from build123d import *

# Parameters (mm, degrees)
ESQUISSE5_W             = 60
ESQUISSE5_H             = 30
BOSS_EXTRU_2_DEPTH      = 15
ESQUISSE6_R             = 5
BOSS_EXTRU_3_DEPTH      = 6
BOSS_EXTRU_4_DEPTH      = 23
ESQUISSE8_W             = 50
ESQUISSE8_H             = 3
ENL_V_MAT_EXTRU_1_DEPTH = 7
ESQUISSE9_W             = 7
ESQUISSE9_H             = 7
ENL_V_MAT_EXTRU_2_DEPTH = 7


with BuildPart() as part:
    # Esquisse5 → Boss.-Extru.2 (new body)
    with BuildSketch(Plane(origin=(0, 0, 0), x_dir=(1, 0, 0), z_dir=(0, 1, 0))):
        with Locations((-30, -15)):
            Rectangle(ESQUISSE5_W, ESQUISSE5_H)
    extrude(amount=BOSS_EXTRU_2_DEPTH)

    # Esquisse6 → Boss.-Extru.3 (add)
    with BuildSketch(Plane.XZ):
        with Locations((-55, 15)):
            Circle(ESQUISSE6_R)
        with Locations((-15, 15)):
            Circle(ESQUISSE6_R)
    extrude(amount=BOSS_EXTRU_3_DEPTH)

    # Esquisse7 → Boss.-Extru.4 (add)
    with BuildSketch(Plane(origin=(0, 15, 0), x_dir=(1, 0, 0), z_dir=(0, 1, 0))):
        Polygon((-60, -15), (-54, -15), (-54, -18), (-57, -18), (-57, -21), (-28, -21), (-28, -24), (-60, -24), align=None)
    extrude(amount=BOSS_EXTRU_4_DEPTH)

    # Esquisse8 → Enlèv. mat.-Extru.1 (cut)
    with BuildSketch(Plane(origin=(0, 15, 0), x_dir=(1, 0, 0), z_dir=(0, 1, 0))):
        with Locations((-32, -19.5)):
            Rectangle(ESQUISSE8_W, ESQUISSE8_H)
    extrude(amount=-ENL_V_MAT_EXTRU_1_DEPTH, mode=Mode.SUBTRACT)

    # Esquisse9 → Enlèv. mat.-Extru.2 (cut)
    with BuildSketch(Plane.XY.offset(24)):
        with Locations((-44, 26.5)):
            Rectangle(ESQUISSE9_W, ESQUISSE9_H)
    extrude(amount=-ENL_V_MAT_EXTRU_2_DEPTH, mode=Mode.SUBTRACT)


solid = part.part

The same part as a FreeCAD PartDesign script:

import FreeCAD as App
import Part
import Sketcher
Q = App.Units.Quantity

doc = App.newDocument("Part")
body = doc.addObject("PartDesign::Body", "Body")

sketch1 = body.newObject("Sketcher::SketchObject", "Sketch")
sketch1.AttachmentSupport = (doc.getObject("XZ_Plane"), [""])
sketch1.MapMode = "FlatFace"
sketch1.addGeometry([
    Part.LineSegment(App.Vector(-60, 0, 0), App.Vector(-60, 30, 0)),
    Part.LineSegment(App.Vector(-60, 30, 0), App.Vector(0, 30, 0)),
    Part.LineSegment(App.Vector(0, 30, 0), App.Vector(0, 0, 0)),
    Part.LineSegment(App.Vector(0, 0, 0), App.Vector(-60, 0, 0)),
], False)
sketch1.addConstraint([
    Sketcher.Constraint("Coincident", 0, 2, 1, 1),
    Sketcher.Constraint("Coincident", 1, 2, 2, 1),
    Sketcher.Constraint("Coincident", 2, 2, 3, 1),
    Sketcher.Constraint("Coincident", 3, 2, 0, 1),
    Sketcher.Constraint("Vertical", 0),
    Sketcher.Constraint("Horizontal", 1),
    Sketcher.Constraint("Vertical", 2),
    Sketcher.Constraint("Horizontal", 3),
    Sketcher.Constraint("Coincident", 2, 2, -1, 1),
    Sketcher.Constraint("DistanceX", 1, 1, 1, 2, Q("60 mm")),
    Sketcher.Constraint("DistanceY", 0, 1, 0, 2, Q("30 mm")),
])
pad1 = body.newObject("PartDesign::Pad", "Pad")
pad1.Profile = sketch1
pad1.Length = 15
pad1.Reversed = True

sketch2 = body.newObject("Sketcher::SketchObject", "Sketch001")
sketch2.AttachmentSupport = (doc.getObject("XZ_Plane"), [""])
sketch2.MapMode = "FlatFace"
sketch2.addGeometry([
    Part.Circle(App.Vector(-55, 15, 0), App.Vector(0, 0, 1), 5),
    Part.Circle(App.Vector(-15, 15, 0), App.Vector(0, 0, 1), 5),
], False)
sketch2.addConstraint([
    Sketcher.Constraint("Equal", 0, 1),
    Sketcher.Constraint("Horizontal", 0, 3, 1, 3),
    Sketcher.Constraint("Diameter", 0, Q("10 mm")),
    Sketcher.Constraint("DistanceX", 0, 3, -1, 1, Q("55 mm")),
    Sketcher.Constraint("DistanceY", -1, 1, 0, 3, Q("15 mm")),
    Sketcher.Constraint("DistanceX", 1, 3, -1, 1, Q("15 mm")),
])
pad2 = body.newObject("PartDesign::Pad", "Pad001")
pad2.Profile = sketch2
pad2.Length = 6

sketch3 = body.newObject("Sketcher::SketchObject", "Sketch002")
sketch3.AttachmentSupport = (doc.getObject("XZ_Plane"), [""])
sketch3.MapMode = "FlatFace"
sketch3.AttachmentOffset = App.Placement(App.Vector(0, 0, -15), App.Rotation())
sketch3.addGeometry([
    Part.LineSegment(App.Vector(-54, 15, 0), App.Vector(-60, 15, 0)),
    Part.LineSegment(App.Vector(-60, 15, 0), App.Vector(-60, 24, 0)),
    Part.LineSegment(App.Vector(-60, 24, 0), App.Vector(-28, 24, 0)),
    Part.LineSegment(App.Vector(-28, 24, 0), App.Vector(-28, 21, 0)),
    Part.LineSegment(App.Vector(-28, 21, 0), App.Vector(-57, 21, 0)),
    Part.LineSegment(App.Vector(-57, 21, 0), App.Vector(-57, 18, 0)),
    Part.LineSegment(App.Vector(-57, 18, 0), App.Vector(-54, 18, 0)),
    Part.LineSegment(App.Vector(-54, 18, 0), App.Vector(-54, 15, 0)),
], False)
sketch3.addConstraint([
    Sketcher.Constraint("Coincident", 0, 2, 1, 1),
    Sketcher.Constraint("Coincident", 1, 2, 2, 1),
    Sketcher.Constraint("Coincident", 2, 2, 3, 1),
    Sketcher.Constraint("Coincident", 3, 2, 4, 1),
    Sketcher.Constraint("Coincident", 4, 2, 5, 1),
    Sketcher.Constraint("Coincident", 5, 2, 6, 1),
    Sketcher.Constraint("Coincident", 6, 2, 7, 1),
    Sketcher.Constraint("Coincident", 7, 2, 0, 1),
    Sketcher.Constraint("Horizontal", 0),
    Sketcher.Constraint("Vertical", 1),
    Sketcher.Constraint("Horizontal", 2),
    Sketcher.Constraint("Vertical", 3),
    Sketcher.Constraint("Horizontal", 4),
    Sketcher.Constraint("Vertical", 5),
    Sketcher.Constraint("Horizontal", 6),
    Sketcher.Constraint("Vertical", 7),
    Sketcher.Constraint("Equal", 6, 3),
    Sketcher.Constraint("Equal", 3, 5),
    Sketcher.Constraint("Equal", 5, 7),
    Sketcher.Constraint("DistanceX", 0, 2, 0, 1, Q("6 mm")),
    Sketcher.Constraint("DistanceX", 2, 1, 2, 2, Q("32 mm")),
    Sketcher.Constraint("DistanceX", 4, 2, 4, 1, Q("29 mm")),
    Sketcher.Constraint("DistanceX", 0, 2, -1, 1, Q("60 mm")),
    Sketcher.Constraint("DistanceY", -1, 1, 0, 2, Q("15 mm")),
])
pad3 = body.newObject("PartDesign::Pad", "Pad002")
pad3.Profile = sketch3
pad3.Length = 23
pad3.Reversed = True

sketch4 = body.newObject("Sketcher::SketchObject", "Sketch003")
sketch4.AttachmentSupport = (doc.getObject("XZ_Plane"), [""])
sketch4.MapMode = "FlatFace"
sketch4.AttachmentOffset = App.Placement(App.Vector(0, 0, -15), App.Rotation())
sketch4.addGeometry([
    Part.LineSegment(App.Vector(-57, 18, 0), App.Vector(-57, 21, 0)),
    Part.LineSegment(App.Vector(-57, 21, 0), App.Vector(-7, 21, 0)),
    Part.LineSegment(App.Vector(-7, 21, 0), App.Vector(-7, 18, 0)),
    Part.LineSegment(App.Vector(-7, 18, 0), App.Vector(-57, 18, 0)),
], False)
sketch4.addConstraint([
    Sketcher.Constraint("Coincident", 0, 2, 1, 1),
    Sketcher.Constraint("Coincident", 1, 2, 2, 1),
    Sketcher.Constraint("Coincident", 2, 2, 3, 1),
    Sketcher.Constraint("Coincident", 3, 2, 0, 1),
    Sketcher.Constraint("Vertical", 0),
    Sketcher.Constraint("Horizontal", 1),
    Sketcher.Constraint("Vertical", 2),
    Sketcher.Constraint("Horizontal", 3),
    Sketcher.Constraint("DistanceX", 1, 1, 1, 2, Q("50 mm")),
    Sketcher.Constraint("DistanceY", 0, 1, 0, 2, Q("3 mm")),
    Sketcher.Constraint("DistanceX", 0, 2, -1, 1, Q("57 mm")),
    Sketcher.Constraint("DistanceY", -1, 1, 0, 2, Q("21 mm")),
])
pocket1 = body.newObject("PartDesign::Pocket", "Pocket")
pocket1.Profile = sketch4
pocket1.Length = 7
pocket1.Reversed = True

sketch5 = body.newObject("Sketcher::SketchObject", "Sketch004")
sketch5.AttachmentSupport = (doc.getObject("XY_Plane"), [""])
sketch5.MapMode = "FlatFace"
sketch5.AttachmentOffset = App.Placement(App.Vector(0, 0, 24), App.Rotation())
sketch5.addGeometry([
    Part.LineSegment(App.Vector(-48, 30, 0), App.Vector(-48, 23, 0)),
    Part.LineSegment(App.Vector(-48, 23, 0), App.Vector(-40, 23, 0)),
    Part.LineSegment(App.Vector(-40, 23, 0), App.Vector(-40, 30, 0)),
    Part.LineSegment(App.Vector(-40, 30, 0), App.Vector(-48, 30, 0)),
], False)
sketch5.addConstraint([
    Sketcher.Constraint("Coincident", 0, 2, 1, 1),
    Sketcher.Constraint("Coincident", 1, 2, 2, 1),
    Sketcher.Constraint("Coincident", 2, 2, 3, 1),
    Sketcher.Constraint("Coincident", 3, 2, 0, 1),
    Sketcher.Constraint("Vertical", 0),
    Sketcher.Constraint("Horizontal", 1),
    Sketcher.Constraint("Vertical", 2),
    Sketcher.Constraint("Horizontal", 3),
    Sketcher.Constraint("Equal", 3, 0),
    Sketcher.Constraint("DistanceX", 1, 1, 1, 2, Q("7 mm")),
    Sketcher.Constraint("DistanceY", -1, 1, 0, 2, Q("23 mm")),
    Sketcher.Constraint("DistanceX", 0, 2, -1, 1, Q("47.5 mm")),
])
pocket2 = body.newObject("PartDesign::Pocket", "Pocket001")
pocket2.Profile = sketch5
pocket2.Length = 7

doc.recompute()
